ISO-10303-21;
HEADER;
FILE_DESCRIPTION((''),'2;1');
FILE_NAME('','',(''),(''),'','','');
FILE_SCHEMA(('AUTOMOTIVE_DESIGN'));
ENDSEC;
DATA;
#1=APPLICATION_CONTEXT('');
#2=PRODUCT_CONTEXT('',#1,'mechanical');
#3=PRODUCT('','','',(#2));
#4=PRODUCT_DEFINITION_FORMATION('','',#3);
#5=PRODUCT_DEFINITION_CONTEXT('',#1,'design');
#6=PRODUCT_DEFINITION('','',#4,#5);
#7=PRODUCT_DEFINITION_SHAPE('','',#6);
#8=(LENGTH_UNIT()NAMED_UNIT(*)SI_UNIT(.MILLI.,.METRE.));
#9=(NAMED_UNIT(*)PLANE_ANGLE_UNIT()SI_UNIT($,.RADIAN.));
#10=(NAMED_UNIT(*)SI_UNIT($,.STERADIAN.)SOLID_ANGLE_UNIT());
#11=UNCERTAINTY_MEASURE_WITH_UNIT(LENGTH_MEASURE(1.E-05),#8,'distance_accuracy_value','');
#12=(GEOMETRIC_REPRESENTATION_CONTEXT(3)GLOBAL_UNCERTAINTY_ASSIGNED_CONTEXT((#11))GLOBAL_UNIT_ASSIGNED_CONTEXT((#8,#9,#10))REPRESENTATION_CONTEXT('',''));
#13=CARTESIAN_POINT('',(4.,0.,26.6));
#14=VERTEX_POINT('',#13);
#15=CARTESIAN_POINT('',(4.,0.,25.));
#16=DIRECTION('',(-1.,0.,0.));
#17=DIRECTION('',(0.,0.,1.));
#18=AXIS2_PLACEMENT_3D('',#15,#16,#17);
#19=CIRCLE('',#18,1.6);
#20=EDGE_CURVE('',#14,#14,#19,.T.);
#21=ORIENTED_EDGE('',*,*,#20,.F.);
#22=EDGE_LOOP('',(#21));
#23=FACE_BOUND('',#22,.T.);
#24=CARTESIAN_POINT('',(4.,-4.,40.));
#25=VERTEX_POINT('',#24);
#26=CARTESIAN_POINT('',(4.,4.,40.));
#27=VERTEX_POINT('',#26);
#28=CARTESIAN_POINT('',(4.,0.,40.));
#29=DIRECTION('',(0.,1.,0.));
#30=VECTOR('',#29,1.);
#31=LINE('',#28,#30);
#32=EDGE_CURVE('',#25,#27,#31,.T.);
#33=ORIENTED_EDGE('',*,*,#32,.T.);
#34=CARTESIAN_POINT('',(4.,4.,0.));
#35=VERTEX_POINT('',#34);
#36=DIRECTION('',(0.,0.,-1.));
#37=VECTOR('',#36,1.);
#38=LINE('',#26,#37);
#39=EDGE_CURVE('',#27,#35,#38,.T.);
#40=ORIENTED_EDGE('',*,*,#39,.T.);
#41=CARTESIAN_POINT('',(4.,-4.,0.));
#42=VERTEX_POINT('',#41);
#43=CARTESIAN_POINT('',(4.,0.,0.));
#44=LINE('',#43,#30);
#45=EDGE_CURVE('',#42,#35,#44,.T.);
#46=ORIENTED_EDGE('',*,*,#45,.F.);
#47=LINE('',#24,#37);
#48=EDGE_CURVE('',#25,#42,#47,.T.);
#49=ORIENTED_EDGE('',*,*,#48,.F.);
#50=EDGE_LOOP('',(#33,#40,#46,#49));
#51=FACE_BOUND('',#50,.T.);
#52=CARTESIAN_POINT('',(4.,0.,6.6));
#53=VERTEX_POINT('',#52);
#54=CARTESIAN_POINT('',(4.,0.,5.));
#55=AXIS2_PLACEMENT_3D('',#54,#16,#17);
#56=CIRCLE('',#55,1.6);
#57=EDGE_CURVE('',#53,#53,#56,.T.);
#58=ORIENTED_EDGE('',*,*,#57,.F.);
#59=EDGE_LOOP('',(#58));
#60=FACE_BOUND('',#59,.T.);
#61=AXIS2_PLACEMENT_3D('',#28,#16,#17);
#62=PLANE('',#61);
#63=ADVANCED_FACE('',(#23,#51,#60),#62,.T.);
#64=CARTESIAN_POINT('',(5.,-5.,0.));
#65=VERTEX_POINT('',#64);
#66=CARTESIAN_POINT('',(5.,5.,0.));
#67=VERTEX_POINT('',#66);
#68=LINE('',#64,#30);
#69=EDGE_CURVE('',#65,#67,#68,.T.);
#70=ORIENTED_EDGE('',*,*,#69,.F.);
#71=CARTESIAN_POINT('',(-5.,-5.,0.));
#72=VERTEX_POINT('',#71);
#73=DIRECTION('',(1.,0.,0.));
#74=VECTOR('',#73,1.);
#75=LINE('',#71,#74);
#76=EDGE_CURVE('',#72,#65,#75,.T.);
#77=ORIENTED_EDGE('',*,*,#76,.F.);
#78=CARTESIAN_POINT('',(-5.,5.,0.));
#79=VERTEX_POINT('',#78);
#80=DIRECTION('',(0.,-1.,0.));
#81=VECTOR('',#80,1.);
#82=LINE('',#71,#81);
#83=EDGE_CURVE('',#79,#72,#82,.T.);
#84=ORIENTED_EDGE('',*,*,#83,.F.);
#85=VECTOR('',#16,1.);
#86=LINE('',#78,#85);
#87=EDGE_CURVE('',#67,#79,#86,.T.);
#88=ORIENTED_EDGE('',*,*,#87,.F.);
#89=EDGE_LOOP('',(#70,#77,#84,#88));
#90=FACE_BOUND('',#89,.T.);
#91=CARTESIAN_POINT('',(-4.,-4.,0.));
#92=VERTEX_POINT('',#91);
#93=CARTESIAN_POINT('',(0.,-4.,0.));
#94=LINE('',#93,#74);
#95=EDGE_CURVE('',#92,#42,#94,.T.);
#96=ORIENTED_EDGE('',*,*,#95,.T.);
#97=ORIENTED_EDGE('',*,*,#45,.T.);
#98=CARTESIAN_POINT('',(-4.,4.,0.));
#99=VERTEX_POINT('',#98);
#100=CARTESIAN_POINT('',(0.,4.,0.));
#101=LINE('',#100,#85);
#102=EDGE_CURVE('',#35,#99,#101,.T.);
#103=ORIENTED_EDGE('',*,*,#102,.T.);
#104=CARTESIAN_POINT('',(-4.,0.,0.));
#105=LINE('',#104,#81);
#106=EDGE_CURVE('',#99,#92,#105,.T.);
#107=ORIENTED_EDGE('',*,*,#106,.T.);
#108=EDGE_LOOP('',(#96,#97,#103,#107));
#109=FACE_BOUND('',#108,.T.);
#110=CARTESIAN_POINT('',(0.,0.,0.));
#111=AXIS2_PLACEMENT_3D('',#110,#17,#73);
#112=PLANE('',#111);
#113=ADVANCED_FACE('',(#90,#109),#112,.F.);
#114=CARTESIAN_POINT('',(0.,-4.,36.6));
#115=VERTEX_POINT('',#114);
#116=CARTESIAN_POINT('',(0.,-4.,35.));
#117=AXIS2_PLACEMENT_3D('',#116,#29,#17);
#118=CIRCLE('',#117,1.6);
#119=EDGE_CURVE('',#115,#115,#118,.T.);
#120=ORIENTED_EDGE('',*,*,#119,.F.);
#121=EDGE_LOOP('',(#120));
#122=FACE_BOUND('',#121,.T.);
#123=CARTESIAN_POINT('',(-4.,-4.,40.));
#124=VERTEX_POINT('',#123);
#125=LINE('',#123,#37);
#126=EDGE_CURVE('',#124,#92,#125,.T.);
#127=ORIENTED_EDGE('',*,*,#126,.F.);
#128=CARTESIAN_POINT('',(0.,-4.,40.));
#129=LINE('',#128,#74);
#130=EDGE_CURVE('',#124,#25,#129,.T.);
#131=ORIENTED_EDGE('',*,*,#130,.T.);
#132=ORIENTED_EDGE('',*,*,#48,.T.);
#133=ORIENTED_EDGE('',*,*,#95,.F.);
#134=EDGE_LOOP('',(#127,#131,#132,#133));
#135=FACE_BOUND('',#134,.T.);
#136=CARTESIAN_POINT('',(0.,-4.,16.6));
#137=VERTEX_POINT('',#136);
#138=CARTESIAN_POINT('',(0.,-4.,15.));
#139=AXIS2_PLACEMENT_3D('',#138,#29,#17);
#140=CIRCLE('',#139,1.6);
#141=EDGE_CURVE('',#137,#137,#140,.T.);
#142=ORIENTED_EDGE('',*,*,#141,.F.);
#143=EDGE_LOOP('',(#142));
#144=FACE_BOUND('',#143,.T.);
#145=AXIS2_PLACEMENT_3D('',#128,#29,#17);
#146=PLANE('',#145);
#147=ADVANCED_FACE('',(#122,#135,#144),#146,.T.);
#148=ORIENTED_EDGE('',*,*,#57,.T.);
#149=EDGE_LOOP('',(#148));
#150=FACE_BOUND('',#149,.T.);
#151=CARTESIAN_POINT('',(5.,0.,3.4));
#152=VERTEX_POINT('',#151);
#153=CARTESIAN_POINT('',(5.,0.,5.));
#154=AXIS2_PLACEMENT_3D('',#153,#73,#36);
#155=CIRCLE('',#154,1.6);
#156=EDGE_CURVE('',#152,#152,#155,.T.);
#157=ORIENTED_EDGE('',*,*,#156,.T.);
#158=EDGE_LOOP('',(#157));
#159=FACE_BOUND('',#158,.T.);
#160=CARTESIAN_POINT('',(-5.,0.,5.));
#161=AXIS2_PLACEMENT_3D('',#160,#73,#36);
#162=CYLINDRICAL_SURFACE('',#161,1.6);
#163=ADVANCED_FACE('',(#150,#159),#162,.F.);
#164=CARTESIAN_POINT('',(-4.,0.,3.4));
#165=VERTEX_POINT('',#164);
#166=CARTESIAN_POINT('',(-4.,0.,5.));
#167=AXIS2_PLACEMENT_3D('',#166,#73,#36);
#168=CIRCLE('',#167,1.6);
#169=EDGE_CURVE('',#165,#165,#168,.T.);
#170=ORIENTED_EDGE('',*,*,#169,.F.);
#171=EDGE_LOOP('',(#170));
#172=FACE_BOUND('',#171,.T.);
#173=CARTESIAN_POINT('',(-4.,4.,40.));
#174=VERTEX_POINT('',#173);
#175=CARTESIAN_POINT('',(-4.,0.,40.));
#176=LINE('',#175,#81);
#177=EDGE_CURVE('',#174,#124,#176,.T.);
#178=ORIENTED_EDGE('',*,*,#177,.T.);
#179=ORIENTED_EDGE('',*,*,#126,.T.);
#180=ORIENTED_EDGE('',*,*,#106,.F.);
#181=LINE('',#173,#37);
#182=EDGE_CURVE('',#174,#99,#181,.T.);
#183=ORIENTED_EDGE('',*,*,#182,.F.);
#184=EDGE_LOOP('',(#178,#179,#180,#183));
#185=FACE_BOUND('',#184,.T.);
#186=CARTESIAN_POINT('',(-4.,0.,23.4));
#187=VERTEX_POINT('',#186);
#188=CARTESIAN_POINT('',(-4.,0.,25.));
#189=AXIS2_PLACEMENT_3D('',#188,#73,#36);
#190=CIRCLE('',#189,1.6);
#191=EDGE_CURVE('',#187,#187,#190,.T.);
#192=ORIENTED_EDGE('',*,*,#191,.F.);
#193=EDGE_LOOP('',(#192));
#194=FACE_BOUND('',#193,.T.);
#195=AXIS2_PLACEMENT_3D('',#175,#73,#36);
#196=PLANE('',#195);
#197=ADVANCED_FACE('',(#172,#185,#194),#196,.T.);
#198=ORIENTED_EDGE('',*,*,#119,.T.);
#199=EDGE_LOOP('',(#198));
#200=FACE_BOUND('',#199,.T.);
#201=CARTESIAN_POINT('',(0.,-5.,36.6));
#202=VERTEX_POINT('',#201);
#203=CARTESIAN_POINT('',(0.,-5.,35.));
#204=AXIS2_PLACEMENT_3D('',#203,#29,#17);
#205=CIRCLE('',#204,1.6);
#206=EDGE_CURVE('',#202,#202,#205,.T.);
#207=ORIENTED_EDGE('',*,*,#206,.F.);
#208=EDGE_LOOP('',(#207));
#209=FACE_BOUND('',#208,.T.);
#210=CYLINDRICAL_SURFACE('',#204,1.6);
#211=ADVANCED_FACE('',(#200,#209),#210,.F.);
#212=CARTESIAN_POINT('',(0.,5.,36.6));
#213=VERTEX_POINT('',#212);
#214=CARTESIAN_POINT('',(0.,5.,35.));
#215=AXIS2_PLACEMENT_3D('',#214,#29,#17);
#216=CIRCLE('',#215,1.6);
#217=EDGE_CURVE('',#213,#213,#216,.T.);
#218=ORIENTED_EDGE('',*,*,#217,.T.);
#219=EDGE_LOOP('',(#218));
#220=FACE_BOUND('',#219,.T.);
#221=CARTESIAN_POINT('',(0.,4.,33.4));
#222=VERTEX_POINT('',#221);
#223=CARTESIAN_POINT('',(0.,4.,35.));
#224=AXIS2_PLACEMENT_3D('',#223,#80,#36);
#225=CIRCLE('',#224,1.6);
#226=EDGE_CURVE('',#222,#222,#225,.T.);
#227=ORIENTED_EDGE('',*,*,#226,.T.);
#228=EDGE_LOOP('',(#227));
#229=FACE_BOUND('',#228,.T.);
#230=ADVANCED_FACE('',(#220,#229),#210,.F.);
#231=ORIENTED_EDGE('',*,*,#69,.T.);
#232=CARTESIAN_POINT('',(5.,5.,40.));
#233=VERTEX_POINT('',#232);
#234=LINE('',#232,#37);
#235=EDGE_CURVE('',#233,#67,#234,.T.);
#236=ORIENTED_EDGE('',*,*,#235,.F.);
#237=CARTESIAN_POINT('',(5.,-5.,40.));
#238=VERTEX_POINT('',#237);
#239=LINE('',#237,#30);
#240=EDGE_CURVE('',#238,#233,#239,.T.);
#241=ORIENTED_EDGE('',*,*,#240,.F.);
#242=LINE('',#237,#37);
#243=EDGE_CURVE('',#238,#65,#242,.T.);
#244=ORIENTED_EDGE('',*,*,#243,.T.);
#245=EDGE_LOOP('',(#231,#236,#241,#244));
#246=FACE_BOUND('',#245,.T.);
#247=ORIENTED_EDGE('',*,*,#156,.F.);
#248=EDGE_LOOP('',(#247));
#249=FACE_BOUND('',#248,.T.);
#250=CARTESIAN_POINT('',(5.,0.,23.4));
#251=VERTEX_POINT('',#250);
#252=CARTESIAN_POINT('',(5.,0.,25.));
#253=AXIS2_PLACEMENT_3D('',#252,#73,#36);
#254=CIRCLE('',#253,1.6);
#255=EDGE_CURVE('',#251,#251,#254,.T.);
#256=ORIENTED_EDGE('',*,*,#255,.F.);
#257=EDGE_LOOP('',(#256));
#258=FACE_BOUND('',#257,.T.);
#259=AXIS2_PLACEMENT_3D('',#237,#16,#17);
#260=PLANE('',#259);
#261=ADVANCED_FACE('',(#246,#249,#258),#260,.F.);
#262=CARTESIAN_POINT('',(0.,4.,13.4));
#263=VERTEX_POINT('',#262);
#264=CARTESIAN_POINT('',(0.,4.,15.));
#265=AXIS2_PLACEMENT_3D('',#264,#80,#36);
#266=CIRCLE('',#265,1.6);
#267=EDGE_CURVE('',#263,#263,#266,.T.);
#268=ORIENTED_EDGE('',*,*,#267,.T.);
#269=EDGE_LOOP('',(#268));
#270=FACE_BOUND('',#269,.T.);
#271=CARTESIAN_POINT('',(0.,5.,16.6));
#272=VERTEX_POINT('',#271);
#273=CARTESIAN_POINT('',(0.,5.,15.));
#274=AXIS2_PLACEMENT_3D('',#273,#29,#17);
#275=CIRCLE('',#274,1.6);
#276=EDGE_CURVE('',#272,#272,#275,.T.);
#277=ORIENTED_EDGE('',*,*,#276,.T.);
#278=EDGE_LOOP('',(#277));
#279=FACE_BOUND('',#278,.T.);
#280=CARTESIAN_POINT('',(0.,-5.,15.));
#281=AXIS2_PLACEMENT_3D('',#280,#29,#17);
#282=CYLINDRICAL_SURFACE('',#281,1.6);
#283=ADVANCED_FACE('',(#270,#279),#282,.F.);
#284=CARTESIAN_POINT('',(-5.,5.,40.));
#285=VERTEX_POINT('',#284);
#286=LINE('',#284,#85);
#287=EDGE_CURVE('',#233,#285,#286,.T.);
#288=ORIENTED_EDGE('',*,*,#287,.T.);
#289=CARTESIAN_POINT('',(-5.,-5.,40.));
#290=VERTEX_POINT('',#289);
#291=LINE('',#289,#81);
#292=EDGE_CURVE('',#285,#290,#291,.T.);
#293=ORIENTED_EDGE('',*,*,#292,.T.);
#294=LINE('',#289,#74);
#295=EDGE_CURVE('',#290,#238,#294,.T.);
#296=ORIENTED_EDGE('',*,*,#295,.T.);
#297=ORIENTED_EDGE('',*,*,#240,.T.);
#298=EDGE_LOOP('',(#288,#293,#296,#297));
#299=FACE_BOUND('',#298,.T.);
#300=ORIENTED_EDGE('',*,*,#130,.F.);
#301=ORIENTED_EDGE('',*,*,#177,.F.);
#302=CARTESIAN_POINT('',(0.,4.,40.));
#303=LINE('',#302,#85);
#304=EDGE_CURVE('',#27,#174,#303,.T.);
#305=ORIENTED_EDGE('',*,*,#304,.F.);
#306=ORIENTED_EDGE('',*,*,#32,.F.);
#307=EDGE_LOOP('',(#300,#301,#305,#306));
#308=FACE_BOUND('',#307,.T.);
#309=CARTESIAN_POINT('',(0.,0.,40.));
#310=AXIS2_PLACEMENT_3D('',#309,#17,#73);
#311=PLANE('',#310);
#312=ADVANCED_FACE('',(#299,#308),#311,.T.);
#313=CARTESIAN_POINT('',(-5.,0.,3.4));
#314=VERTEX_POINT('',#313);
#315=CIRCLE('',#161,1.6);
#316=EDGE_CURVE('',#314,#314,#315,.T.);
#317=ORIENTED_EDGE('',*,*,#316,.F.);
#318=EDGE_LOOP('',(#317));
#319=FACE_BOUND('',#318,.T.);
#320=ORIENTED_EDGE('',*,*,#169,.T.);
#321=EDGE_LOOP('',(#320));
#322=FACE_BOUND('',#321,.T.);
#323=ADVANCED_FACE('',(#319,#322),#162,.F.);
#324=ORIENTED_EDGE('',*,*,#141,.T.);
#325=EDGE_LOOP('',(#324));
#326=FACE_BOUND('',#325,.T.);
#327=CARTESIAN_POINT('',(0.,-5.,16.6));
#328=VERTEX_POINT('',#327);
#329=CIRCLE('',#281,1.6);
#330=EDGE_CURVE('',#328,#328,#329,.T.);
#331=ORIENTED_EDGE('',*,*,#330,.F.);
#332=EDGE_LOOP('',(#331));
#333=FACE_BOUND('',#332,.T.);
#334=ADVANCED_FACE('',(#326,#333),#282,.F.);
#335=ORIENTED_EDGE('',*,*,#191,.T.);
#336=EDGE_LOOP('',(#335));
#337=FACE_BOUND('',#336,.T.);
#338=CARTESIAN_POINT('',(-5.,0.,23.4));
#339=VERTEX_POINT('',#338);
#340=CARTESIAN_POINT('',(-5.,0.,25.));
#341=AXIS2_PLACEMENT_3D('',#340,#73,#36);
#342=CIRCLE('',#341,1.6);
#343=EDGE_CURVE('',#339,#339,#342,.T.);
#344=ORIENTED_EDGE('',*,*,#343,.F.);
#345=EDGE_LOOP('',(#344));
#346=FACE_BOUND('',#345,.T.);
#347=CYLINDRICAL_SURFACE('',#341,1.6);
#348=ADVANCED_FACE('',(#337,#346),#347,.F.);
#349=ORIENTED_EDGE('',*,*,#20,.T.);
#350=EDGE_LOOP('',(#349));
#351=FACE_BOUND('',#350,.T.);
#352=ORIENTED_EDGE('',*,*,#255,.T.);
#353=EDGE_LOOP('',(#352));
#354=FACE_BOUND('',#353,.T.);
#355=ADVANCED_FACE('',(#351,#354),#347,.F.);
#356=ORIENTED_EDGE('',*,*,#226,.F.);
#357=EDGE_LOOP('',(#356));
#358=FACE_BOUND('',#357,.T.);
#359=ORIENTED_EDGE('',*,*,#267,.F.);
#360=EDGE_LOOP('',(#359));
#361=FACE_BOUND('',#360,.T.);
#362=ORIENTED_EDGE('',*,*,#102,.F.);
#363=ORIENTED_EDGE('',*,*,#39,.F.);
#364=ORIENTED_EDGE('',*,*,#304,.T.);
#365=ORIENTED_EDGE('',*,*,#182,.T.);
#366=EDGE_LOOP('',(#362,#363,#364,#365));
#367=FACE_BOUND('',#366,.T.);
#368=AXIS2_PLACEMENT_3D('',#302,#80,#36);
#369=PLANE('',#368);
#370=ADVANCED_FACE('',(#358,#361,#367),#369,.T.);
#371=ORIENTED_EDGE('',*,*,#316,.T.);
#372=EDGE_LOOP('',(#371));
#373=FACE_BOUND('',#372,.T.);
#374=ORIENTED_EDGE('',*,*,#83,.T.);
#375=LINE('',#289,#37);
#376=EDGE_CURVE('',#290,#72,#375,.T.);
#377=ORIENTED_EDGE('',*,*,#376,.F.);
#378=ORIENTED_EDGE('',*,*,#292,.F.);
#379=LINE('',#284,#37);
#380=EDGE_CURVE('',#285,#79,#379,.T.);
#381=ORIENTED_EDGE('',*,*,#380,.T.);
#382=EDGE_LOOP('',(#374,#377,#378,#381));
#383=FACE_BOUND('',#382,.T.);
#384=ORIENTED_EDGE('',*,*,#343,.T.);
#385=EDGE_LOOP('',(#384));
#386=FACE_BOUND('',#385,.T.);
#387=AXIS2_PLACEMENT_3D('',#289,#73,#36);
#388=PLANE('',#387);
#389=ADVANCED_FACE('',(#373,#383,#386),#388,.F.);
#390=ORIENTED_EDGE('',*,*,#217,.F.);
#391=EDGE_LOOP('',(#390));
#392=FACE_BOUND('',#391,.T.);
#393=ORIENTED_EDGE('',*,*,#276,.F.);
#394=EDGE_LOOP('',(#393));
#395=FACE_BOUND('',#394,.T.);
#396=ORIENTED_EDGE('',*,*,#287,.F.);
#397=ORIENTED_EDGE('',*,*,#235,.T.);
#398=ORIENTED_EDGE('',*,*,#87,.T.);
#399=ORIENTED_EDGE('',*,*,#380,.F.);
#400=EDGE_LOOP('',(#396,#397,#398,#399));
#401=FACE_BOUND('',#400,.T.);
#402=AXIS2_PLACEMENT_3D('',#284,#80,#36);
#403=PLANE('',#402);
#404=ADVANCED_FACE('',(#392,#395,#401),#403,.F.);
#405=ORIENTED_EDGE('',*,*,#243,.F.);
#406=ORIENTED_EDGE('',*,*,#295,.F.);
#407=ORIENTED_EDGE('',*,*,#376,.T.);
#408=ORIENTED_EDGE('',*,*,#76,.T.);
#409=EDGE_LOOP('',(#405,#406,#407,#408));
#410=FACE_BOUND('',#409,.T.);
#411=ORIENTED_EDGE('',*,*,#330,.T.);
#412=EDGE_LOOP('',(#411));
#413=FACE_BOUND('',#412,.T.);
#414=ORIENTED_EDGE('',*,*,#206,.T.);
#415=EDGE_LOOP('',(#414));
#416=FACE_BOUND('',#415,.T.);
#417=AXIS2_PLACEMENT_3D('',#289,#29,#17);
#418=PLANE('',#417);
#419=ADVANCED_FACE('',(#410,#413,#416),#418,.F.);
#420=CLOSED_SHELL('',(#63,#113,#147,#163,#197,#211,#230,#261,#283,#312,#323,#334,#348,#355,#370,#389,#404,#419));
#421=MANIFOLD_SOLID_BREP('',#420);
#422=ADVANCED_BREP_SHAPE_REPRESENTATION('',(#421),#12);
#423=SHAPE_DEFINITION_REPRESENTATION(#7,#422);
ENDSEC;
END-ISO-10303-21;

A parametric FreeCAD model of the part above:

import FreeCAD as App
import Part
import Sketcher
Q = App.Units.Quantity


def add_polygon(sketch, points):
    """Adds a closed chain of lines whose ends are joined by coincident constraints."""
    first, n = sketch.GeometryCount, len(points)
    for a, b in zip(points, points[1:] + points[:1]):
        sketch.addGeometry(Part.LineSegment(App.Vector(*a, 0), App.Vector(*b, 0)), False)
    for i in range(n):
        sketch.addConstraint(Sketcher.Constraint("Coincident", first + i, 2, first + (i + 1) % n, 1))

doc = App.newDocument("Part")
params = doc.addObject("Spreadsheet::Sheet", "Params")
for row, (alias, value) in enumerate([
    ("sketch1_width", "10 mm"),
    ("sketch1_width2", "8 mm"),
    ("pad1_length", "40 mm"),
    ("sketch2_diameter", "3.2 mm"),
    ("sketch3_diameter", "3.2 mm"),
], start=1):
    params.set(f"A{row}", alias)
    params.set(f"B{row}", "=" + value)
    params.setAlias(f"B{row}", alias)

body = doc.addObject("PartDesign::Body", "Body")

sketch1 = body.newObject("Sketcher::SketchObject", "Sketch")
sketch1.AttachmentSupport = (doc.getObject("XY_Plane"), [""])
sketch1.MapMode = "FlatFace"
add_polygon(sketch1, [(-5, 5), (-5, -5), (5, -5), (5, 5)])
add_polygon(sketch1, [(4, -4), (-4, -4), (-4, 4), (4, 4)])
sketch1.addConstraint([
    Sketcher.Constraint("Vertical", 0),
    Sketcher.Constraint("Horizontal", 1),
    Sketcher.Constraint("Vertical", 2),
    Sketcher.Constraint("Horizontal", 3),
    Sketcher.Constraint("Horizontal", 4),
    Sketcher.Constraint("Vertical", 5),
    Sketcher.Constraint("Horizontal", 6),
    Sketcher.Constraint("Vertical", 7),
    Sketcher.Constraint("Symmetric", 0, 2, 2, 2, -1, 1),
    Sketcher.Constraint("Symmetric", 4, 2, 6, 2, -1, 1),
    Sketcher.Constraint("Equal", 3, 0),
    Sketcher.Constraint("Equal", 6, 5),
    Sketcher.Constraint("DistanceX", 1, 1, 1, 2, Q("10 mm")),
    Sketcher.Constraint("DistanceX", 4, 2, 4, 1, Q("8 mm")),
])
sketch1.setExpression("Constraints[20]", "Params.sketch1_width")
sketch1.setExpression("Constraints[21]", "Params.sketch1_width2")
pad1 = body.newObject("PartDesign::Pad", "Pad")
pad1.Profile = sketch1
pad1.setExpression("Length", "Params.pad1_length")

sketch2 = body.newObject("Sketcher::SketchObject", "Sketch001")
sketch2.AttachmentSupport = (doc.getObject("XZ_Plane"), [""])
sketch2.MapMode = "FlatFace"
sketch2.AttachmentOffset = App.Placement(App.Vector(0, 0, -5), App.Rotation())
sketch2.addGeometry([
    Part.Circle(App.Vector(0, 15, 0), App.Vector(0, 0, 1), 1.6),
    Part.Circle(App.Vector(0, 35, 0), App.Vector(0, 0, 1), 1.6),
], False)
sketch2.addConstraint([
    Sketcher.Constraint("Equal", 0, 1),
    Sketcher.Constraint("PointOnObject", 0, 3, -2),
    Sketcher.Constraint("PointOnObject", 1, 3, -2),
    Sketcher.Constraint("Diameter", 0, Q("3.2 mm")),
    Sketcher.Constraint("DistanceY", -1, 1, 0, 3, Q("15 mm")),
    Sketcher.Constraint("DistanceY", -1, 1, 1, 3, Q("35 mm")),
])
sketch2.setExpression("Constraints[3]", "Params.sketch2_diameter")
pocket1 = body.newObject("PartDesign::Pocket", "Pocket")
pocket1.Profile = sketch2
pocket1.Type = "ThroughAll"
pocket1.Reversed = True

sketch3 = body.newObject("Sketcher::SketchObject", "Sketch002")
sketch3.AttachmentSupport = (doc.getObject("YZ_Plane"), [""])
sketch3.MapMode = "FlatFace"
sketch3.AttachmentOffset = App.Placement(App.Vector(0, 0, 5), App.Rotation())
sketch3.addGeometry([
    Part.Circle(App.Vector(0, 5, 0), App.Vector(0, 0, 1), 1.6),
    Part.Circle(App.Vector(0, 25, 0), App.Vector(0, 0, 1), 1.6),
], False)
sketch3.addConstraint([
    Sketcher.Constraint("Equal", 0, 1),
    Sketcher.Constraint("PointOnObject", 0, 3, -2),
    Sketcher.Constraint("PointOnObject", 1, 3, -2),
    Sketcher.Constraint("Diameter", 0, Q("3.2 mm")),
    Sketcher.Constraint("DistanceY", -1, 1, 0, 3, Q("5 mm")),
    Sketcher.Constraint("DistanceY", -1, 1, 1, 3, Q("25 mm")),
])
sketch3.setExpression("Constraints[3]", "Params.sketch3_diameter")
pocket2 = body.newObject("PartDesign::Pocket", "Pocket001")
pocket2.Profile = sketch3
pocket2.Type = "ThroughAll"

doc.recompute()
